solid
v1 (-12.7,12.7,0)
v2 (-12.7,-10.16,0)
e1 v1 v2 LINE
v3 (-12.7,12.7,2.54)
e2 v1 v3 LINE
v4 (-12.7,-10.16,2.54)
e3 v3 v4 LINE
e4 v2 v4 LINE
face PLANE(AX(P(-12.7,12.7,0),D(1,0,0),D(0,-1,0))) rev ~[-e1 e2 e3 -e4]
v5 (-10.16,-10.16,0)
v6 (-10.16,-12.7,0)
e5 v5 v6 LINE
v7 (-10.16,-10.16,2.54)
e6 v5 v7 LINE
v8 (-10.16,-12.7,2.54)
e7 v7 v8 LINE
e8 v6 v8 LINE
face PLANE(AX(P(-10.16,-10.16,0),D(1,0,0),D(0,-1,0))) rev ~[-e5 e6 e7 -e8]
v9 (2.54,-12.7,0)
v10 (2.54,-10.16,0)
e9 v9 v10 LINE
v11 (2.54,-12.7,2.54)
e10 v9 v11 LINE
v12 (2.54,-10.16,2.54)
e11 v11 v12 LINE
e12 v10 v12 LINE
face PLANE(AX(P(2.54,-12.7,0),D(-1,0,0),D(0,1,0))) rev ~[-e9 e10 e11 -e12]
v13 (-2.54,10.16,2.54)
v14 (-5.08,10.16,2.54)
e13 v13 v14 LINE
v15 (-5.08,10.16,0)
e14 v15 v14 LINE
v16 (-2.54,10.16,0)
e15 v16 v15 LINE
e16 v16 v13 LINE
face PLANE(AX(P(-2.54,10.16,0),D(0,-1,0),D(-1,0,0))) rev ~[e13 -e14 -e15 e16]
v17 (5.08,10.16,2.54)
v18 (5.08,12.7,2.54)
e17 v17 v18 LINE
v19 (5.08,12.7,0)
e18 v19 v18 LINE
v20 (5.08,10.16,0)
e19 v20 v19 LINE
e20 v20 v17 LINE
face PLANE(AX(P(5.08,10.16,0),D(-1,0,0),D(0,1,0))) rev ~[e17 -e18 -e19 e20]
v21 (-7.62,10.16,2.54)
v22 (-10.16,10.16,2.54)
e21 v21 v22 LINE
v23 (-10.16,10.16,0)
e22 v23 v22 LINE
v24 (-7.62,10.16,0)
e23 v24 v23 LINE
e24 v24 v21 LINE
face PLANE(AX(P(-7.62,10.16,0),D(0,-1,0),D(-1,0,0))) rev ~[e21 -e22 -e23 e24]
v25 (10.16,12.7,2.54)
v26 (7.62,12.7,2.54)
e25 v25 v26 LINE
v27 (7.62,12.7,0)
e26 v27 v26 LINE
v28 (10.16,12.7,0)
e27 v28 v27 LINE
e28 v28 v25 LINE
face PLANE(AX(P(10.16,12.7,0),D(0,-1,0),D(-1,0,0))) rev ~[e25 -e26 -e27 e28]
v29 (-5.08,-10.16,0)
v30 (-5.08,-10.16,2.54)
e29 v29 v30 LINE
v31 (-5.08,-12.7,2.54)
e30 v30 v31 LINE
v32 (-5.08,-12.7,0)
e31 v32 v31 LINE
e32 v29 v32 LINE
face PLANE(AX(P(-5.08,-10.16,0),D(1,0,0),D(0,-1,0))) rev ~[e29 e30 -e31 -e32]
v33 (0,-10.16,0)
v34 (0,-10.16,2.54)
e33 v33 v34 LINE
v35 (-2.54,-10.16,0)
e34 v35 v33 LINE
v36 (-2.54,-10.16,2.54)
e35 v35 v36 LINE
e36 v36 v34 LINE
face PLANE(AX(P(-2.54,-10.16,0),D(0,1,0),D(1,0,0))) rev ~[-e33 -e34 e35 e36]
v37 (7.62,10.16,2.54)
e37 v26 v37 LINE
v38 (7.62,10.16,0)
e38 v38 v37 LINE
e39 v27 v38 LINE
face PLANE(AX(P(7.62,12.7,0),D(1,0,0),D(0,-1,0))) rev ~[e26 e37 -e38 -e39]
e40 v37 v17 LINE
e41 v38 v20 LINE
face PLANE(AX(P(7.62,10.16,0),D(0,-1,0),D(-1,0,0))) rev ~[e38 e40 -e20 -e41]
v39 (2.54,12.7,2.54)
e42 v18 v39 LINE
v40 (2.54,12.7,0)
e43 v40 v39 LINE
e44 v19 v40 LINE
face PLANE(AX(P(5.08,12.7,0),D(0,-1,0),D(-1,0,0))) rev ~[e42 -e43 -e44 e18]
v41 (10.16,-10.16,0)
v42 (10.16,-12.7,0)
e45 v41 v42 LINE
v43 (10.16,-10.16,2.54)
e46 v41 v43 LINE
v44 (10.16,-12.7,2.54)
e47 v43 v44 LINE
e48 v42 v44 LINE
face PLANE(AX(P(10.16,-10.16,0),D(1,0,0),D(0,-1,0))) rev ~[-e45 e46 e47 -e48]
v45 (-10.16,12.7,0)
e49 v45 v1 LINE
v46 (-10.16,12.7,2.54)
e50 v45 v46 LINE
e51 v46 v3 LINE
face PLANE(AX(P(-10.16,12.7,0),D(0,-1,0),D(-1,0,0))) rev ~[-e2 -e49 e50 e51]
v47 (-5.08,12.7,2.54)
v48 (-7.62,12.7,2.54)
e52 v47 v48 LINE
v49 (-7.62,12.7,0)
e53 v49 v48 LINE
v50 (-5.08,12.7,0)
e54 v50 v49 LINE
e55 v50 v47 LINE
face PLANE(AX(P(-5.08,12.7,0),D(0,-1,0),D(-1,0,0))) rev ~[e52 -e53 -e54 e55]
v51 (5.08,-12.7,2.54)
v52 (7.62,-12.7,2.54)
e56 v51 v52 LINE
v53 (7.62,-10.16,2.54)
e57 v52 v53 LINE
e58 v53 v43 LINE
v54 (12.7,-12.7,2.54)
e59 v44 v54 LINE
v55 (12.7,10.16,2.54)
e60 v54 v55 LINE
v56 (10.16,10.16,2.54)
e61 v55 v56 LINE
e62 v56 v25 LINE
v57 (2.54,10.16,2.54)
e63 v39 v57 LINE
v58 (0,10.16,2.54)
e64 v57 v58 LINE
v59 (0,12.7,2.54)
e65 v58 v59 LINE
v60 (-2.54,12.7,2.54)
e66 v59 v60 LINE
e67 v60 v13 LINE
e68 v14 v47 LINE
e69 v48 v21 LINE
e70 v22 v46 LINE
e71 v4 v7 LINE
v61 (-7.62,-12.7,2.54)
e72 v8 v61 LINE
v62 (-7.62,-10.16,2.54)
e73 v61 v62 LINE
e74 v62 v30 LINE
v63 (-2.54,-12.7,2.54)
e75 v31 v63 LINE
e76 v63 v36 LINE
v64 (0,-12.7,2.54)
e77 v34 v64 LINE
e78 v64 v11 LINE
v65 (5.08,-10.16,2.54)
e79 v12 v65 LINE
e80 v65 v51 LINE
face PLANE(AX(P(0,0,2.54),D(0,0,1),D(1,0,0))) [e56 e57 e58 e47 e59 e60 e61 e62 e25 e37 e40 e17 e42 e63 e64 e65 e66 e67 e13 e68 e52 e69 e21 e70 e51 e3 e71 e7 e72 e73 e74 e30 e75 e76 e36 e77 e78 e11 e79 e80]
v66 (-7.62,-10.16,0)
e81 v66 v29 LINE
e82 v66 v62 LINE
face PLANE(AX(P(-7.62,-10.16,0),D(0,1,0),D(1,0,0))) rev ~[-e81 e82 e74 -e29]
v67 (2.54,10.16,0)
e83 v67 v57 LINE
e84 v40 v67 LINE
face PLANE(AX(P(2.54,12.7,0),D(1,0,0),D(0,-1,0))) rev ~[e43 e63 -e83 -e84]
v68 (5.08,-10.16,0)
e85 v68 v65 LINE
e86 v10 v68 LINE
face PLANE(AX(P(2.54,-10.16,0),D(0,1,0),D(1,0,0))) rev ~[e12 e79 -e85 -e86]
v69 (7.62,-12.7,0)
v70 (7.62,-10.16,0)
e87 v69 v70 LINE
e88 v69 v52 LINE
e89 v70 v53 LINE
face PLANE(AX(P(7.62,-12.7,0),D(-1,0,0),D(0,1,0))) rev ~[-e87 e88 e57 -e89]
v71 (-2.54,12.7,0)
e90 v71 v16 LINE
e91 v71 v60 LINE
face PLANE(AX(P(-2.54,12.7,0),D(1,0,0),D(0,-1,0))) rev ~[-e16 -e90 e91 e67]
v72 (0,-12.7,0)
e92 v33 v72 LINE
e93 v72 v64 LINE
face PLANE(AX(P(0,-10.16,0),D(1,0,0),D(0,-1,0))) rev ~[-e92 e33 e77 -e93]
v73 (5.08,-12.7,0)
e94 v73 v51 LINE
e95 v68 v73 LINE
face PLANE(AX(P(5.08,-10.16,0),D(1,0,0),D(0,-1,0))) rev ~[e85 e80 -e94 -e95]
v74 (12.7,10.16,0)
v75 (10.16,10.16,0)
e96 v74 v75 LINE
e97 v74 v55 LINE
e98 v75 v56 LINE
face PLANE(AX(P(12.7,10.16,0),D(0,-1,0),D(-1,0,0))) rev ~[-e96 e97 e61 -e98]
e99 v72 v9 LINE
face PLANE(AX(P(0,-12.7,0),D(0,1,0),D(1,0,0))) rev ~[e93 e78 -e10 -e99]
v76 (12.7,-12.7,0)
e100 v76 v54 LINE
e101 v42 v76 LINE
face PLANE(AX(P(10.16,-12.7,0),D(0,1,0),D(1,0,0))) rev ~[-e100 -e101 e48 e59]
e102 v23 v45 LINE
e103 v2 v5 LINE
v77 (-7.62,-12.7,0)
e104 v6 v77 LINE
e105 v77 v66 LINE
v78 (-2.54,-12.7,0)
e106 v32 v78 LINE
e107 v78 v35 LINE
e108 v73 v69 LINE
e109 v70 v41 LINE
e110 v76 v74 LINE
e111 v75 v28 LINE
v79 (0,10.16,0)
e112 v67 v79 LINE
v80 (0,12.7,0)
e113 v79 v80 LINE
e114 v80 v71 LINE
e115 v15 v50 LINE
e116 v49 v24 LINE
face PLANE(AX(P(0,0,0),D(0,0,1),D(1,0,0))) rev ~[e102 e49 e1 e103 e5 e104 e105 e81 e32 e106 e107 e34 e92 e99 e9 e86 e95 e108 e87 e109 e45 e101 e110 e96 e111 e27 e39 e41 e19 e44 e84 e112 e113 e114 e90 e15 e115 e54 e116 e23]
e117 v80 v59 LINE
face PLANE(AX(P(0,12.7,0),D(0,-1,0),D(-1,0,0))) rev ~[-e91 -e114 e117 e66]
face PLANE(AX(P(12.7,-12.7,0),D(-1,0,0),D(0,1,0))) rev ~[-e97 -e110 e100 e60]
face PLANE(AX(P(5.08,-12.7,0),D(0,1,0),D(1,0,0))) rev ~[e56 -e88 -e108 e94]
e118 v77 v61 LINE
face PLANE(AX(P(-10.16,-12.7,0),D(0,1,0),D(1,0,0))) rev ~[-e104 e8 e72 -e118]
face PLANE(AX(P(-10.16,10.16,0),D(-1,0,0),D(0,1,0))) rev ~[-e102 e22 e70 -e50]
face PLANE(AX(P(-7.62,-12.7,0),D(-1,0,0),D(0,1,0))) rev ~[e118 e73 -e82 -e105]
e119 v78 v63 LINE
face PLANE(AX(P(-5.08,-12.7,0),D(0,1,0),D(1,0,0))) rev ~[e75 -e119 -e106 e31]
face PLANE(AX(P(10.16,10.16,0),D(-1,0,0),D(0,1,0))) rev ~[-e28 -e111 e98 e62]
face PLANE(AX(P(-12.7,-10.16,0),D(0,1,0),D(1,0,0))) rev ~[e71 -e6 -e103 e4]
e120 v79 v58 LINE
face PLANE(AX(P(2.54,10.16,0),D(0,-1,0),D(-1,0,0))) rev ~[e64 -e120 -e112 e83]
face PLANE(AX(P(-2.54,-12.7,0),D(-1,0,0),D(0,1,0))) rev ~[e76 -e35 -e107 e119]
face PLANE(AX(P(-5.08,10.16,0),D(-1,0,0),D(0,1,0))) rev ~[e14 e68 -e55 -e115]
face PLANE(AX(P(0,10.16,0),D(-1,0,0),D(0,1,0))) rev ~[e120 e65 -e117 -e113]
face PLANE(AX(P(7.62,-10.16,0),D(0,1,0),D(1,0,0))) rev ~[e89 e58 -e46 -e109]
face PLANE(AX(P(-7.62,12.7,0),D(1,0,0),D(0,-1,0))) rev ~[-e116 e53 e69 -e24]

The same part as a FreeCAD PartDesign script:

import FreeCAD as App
import Part
import Sketcher
Q = App.Units.Quantity


def add_polygon(sketch, points):
    """Adds a closed chain of lines whose ends are joined by coincident constraints."""
    first, n = sketch.GeometryCount, len(points)
    for a, b in zip(points, points[1:] + points[:1]):
        sketch.addGeometry(Part.LineSegment(App.Vector(*a, 0), App.Vector(*b, 0)), False)
    for i in range(n):
        sketch.addConstraint(Sketcher.Constraint("Coincident", first + i, 2, first + (i + 1) % n, 1))

doc = App.newDocument("Part")
params = doc.addObject("Spreadsheet::Sheet", "Params")
for row, (alias, value) in enumerate([
    ("sketch1_width", "0.1 in"),
    ("sketch1_height", "0.9 in"),
    ("pad1_length", "0.1 in"),
], start=1):
    params.set(f"A{row}", alias)
    params.set(f"B{row}", "=" + value)
    params.setAlias(f"B{row}", alias)

body = doc.addObject("PartDesign::Body", "Body")

sketch1 = body.newObject("Sketcher::SketchObject", "Sketch")
sketch1.AttachmentSupport = (doc.getObject("XY_Plane"), [""])
sketch1.MapMode = "FlatFace"
add_polygon(sketch1, [(12.7, -12.7), (12.7, 10.16), (10.16, 10.16), (10.16, 12.7), (7.62, 12.7), (7.62, 10.16), (5.08, 10.16), (5.08, 12.7), (2.54, 12.7), (2.54, 10.16), (0, 10.16), (0, 12.7), (-2.54, 12.7), (-2.54, 10.16), (-5.08, 10.16), (-5.08, 12.7), (-7.62, 12.7), (-7.62, 10.16), (-10.16, 10.16), (-10.16, 12.7), (-12.7, 12.7), (-12.7, -10.16), (-10.16, -10.16), (-10.16, -12.7), (-7.62, -12.7), (-7.62, -10.16), (-5.08, -10.16), (-5.08, -12.7), (-2.54, -12.7), (-2.54, -10.16), (0, -10.16), (0, -12.7), (2.54, -12.7), (2.54, -10.16), (5.08, -10.16), (5.08, -12.7), (7.62, -12.7), (7.62, -10.16), (10.16, -10.16), (10.16, -12.7)])
sketch1.addConstraint([
    Sketcher.Constraint("Vertical", 0),
    Sketcher.Constraint("Horizontal", 1),
    Sketcher.Constraint("Vertical", 2),
    Sketcher.Constraint("Horizontal", 3),
    Sketcher.Constraint("Vertical", 4),
    Sketcher.Constraint("Horizontal", 5),
    Sketcher.Constraint("Vertical", 6),
    Sketcher.Constraint("Horizontal", 7),
    Sketcher.Constraint("Vertical", 8),
    Sketcher.Constraint("Horizontal", 9),
    Sketcher.Constraint("Vertical", 10),
    Sketcher.Constraint("Horizontal", 11),
    Sketcher.Constraint("Vertical", 12),
    Sketcher.Constraint("Horizontal", 13),
    Sketcher.Constraint("Vertical", 14),
    Sketcher.Constraint("Horizontal", 15),
    Sketcher.Constraint("Vertical", 16),
    Sketcher.Constraint("Horizontal", 17),
    Sketcher.Constraint("Vertical", 18),
    Sketcher.Constraint("Horizontal", 19),
    Sketcher.Constraint("Vertical", 20),
    Sketcher.Constraint("Horizontal", 21),
    Sketcher.Constraint("Vertical", 22),
    Sketcher.Constraint("Horizontal", 23),
    Sketcher.Constraint("Vertical", 24),
    Sketcher.Constraint("Horizontal", 25),
    Sketcher.Constraint("Vertical", 26),
    Sketcher.Constraint("Horizontal", 27),
    Sketcher.Constraint("Vertical", 28),
    Sketcher.Constraint("Horizontal", 29),
    Sketcher.Constraint("Vertical", 30),
    Sketcher.Constraint("Horizontal", 31),
    Sketcher.Constraint("Vertical", 32),
    Sketcher.Constraint("Horizontal", 33),
    Sketcher.Constraint("Vertical", 34),
    Sketcher.Constraint("Horizontal", 35),
    Sketcher.Constraint("Vertical", 36),
    Sketcher.Constraint("Horizontal", 37),
    Sketcher.Constraint("Vertical", 38),
    Sketcher.Constraint("Horizontal", 39),
    Sketcher.Constraint("Symmetric", 0, 2, 20, 2, -1, 1),
    Sketcher.Constraint("Symmetric", 2, 2, 22, 2, -1, 1),
    Sketcher.Constraint("Symmetric", 4, 2, 24, 2, -1, 1),
    Sketcher.Constraint("Symmetric", 6, 2, 26, 2, -1, 1),
    Sketcher.Constraint("Symmetric", 8, 2, 28, 2, -1, 1),
    Sketcher.Constraint("Symmetric", 10, 2, 30, 2, -1, 1),
    Sketcher.Constraint("Symmetric", 12, 2, 32, 2, -1, 1),
    Sketcher.Constraint("Symmetric", 14, 2, 34, 2, -1, 1),
    Sketcher.Constraint("Symmetric", 16, 2, 36, 2, -1, 1),
    Sketcher.Constraint("Symmetric", 18, 2, 38, 2, -1, 1),
    Sketcher.Constraint("Symmetric", 7, 2, 11, 2, -2),
    Sketcher.Constraint("Symmetric", 5, 2, 13, 2, -2),
    Sketcher.Constraint("Symmetric", 3, 2, 15, 2, -2),
    Sketcher.Constraint("Symmetric", 1, 2, 17, 2, -2),
    Sketcher.Constraint("PointOnObject", 9, 2, -2),
    Sketcher.Constraint("Horizontal", 1, 2, 4, 2),
    Sketcher.Constraint("Horizontal", 3, 2, 6, 2),
    Sketcher.Constraint("Horizontal", 5, 2, 8, 2),
    Sketcher.Constraint("Horizontal", 15, 2, 18, 2),
    Sketcher.Constraint("Equal", 1, 3),
    Sketcher.Constraint("Equal", 3, 5),
    Sketcher.Constraint("Equal", 5, 7),
    Sketcher.Constraint("Equal", 7, 9),
    Sketcher.Constraint("Equal", 39, 2),
    Sketcher.Constraint("DistanceX", 1, 2, 1, 1, Q("0.1 in")),
    Sketcher.Constraint("DistanceY", 0, 1, 0, 2, Q("0.9 in")),
])
sketch1.setExpression("Constraints[104]", "Params.sketch1_width")
sketch1.setExpression("Constraints[105]", "Params.sketch1_height")
pad1 = body.newObject("PartDesign::Pad", "Pad")
pad1.Profile = sketch1
pad1.setExpression("Length", "Params.pad1_length")

doc.recompute()
